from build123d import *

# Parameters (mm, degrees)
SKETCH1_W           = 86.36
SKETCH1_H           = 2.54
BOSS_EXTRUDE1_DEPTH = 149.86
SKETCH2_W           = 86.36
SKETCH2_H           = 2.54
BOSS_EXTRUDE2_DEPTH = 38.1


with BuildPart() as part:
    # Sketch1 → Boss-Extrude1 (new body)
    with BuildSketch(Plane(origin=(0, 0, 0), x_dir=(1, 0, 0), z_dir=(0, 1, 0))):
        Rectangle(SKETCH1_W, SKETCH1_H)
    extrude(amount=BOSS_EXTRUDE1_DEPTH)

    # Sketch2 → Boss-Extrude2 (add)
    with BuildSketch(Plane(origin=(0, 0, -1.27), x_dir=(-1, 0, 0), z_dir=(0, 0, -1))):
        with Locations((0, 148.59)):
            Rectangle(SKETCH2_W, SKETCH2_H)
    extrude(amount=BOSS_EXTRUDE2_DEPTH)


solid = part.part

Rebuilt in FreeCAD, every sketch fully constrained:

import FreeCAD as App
import Part
import Sketcher

V = App.Vector
Q = App.Units.Quantity

doc = App.newDocument("Part")
params = doc.addObject("Spreadsheet::Sheet", "Params")
for row, (alias, value) in enumerate([
    ("sketch1_width", "3.4 in"),
    ("sketch1_height", "0.1 in"),
    ("pad1_length", "5.9 in"),
    ("sketch2_width", "3.4 in"),
    ("sketch2_height", "0.1 in"),
    ("pad2_length", "1.5 in"),
], start=1):
    params.set(f"A{row}", alias)
    params.set(f"B{row}", "=" + value)
    params.setAlias(f"B{row}", alias)

body = doc.addObject("PartDesign::Body", "Body")

# Sketch on XZ plane
sketch1 = body.newObject("Sketcher::SketchObject", "Sketch")
sketch1.AttachmentSupport = (doc.getObject("XZ_Plane"), [""])
sketch1.MapMode = "FlatFace"
sketch1.addGeometry([
    Part.LineSegment(V(-43.2, -1.3, 0), V(-43.2, 1.3, 0)),
    Part.LineSegment(V(-43.2, 1.3, 0), V(43.2, 1.3, 0)),
    Part.LineSegment(V(43.2, 1.3, 0), V(43.2, -1.3, 0)),
    Part.LineSegment(V(43.2, -1.3, 0), V(-43.2, -1.3, 0)),
], False)
sketch1.addConstraint([
    Sketcher.Constraint("Coincident", 0, 2, 1, 1),
    Sketcher.Constraint("Coincident", 1, 2, 2, 1),
    Sketcher.Constraint("Coincident", 2, 2, 3, 1),
    Sketcher.Constraint("Coincident", 3, 2, 0, 1),
    Sketcher.Constraint("Vertical", 0),
    Sketcher.Constraint("Horizontal", 1),
    Sketcher.Constraint("Vertical", 2),
    Sketcher.Constraint("Horizontal", 3),
    Sketcher.Constraint("Symmetric", 0, 2, 2, 2, -1, 1),
    Sketcher.Constraint("DistanceX", 1, 1, 1, 2, Q("3.4 in")),
    Sketcher.Constraint("DistanceY", 0, 1, 0, 2, Q("0.1 in")),
])
sketch1.setExpression("Constraints[9]", "Params.sketch1_width")
sketch1.setExpression("Constraints[10]", "Params.sketch1_height")
pad1 = body.newObject("PartDesign::Pad", "Pad")
pad1.Profile = sketch1
pad1.setExpression("Length", "Params.pad1_length")
pad1.Reversed = True

# Sketch on XY plane
sketch2 = body.newObject("Sketcher::SketchObject", "Sketch001")
sketch2.AttachmentSupport = (doc.getObject("XY_Plane"), [""])
sketch2.MapMode = "FlatFace"
sketch2.AttachmentOffset = App.Placement(V(0, 0, -0.05 * 25.4), App.Rotation())
sketch2.addGeometry([
    Part.LineSegment(V(43.2, 149.9, 0), V(43.2, 147.3, 0)),
    Part.LineSegment(V(43.2, 147.3, 0), V(-43.2, 147.3, 0)),
    Part.LineSegment(V(-43.2, 147.3, 0), V(-43.2, 149.9, 0)),
    Part.LineSegment(V(-43.2, 149.9, 0), V(43.2, 149.9, 0)),
], False)
sketch2.addConstraint([
    Sketcher.Constraint("Coincident", 0, 2, 1, 1),
    Sketcher.Constraint("Coincident", 1, 2, 2, 1),
    Sketcher.Constraint("Coincident", 2, 2, 3, 1),
    Sketcher.Constraint("Coincident", 3, 2, 0, 1),
    Sketcher.Constraint("Vertical", 0),
    Sketcher.Constraint("Horizontal", 1),
    Sketcher.Constraint("Vertical", 2),
    Sketcher.Constraint("Horizontal", 3),
    Sketcher.Constraint("DistanceX", 1, 2, 1, 1, Q("3.4 in")),
    Sketcher.Constraint("DistanceY", 0, 2, 0, 1, Q("0.1 in")),
    Sketcher.Constraint("DistanceX", -1, 1, 0, 2, Q("1.7 in")),
    Sketcher.Constraint("DistanceY", -1, 1, 0, 2, Q("5.8 in")),
])
sketch2.setExpression("Constraints[8]", "Params.sketch2_width")
sketch2.setExpression("Constraints[9]", "Params.sketch2_height")
pad2 = body.newObject("PartDesign::Pad", "Pad001")
pad2.Profile = sketch2
pad2.setExpression("Length", "Params.pad2_length")
pad2.Reversed = True

doc.recompute()
